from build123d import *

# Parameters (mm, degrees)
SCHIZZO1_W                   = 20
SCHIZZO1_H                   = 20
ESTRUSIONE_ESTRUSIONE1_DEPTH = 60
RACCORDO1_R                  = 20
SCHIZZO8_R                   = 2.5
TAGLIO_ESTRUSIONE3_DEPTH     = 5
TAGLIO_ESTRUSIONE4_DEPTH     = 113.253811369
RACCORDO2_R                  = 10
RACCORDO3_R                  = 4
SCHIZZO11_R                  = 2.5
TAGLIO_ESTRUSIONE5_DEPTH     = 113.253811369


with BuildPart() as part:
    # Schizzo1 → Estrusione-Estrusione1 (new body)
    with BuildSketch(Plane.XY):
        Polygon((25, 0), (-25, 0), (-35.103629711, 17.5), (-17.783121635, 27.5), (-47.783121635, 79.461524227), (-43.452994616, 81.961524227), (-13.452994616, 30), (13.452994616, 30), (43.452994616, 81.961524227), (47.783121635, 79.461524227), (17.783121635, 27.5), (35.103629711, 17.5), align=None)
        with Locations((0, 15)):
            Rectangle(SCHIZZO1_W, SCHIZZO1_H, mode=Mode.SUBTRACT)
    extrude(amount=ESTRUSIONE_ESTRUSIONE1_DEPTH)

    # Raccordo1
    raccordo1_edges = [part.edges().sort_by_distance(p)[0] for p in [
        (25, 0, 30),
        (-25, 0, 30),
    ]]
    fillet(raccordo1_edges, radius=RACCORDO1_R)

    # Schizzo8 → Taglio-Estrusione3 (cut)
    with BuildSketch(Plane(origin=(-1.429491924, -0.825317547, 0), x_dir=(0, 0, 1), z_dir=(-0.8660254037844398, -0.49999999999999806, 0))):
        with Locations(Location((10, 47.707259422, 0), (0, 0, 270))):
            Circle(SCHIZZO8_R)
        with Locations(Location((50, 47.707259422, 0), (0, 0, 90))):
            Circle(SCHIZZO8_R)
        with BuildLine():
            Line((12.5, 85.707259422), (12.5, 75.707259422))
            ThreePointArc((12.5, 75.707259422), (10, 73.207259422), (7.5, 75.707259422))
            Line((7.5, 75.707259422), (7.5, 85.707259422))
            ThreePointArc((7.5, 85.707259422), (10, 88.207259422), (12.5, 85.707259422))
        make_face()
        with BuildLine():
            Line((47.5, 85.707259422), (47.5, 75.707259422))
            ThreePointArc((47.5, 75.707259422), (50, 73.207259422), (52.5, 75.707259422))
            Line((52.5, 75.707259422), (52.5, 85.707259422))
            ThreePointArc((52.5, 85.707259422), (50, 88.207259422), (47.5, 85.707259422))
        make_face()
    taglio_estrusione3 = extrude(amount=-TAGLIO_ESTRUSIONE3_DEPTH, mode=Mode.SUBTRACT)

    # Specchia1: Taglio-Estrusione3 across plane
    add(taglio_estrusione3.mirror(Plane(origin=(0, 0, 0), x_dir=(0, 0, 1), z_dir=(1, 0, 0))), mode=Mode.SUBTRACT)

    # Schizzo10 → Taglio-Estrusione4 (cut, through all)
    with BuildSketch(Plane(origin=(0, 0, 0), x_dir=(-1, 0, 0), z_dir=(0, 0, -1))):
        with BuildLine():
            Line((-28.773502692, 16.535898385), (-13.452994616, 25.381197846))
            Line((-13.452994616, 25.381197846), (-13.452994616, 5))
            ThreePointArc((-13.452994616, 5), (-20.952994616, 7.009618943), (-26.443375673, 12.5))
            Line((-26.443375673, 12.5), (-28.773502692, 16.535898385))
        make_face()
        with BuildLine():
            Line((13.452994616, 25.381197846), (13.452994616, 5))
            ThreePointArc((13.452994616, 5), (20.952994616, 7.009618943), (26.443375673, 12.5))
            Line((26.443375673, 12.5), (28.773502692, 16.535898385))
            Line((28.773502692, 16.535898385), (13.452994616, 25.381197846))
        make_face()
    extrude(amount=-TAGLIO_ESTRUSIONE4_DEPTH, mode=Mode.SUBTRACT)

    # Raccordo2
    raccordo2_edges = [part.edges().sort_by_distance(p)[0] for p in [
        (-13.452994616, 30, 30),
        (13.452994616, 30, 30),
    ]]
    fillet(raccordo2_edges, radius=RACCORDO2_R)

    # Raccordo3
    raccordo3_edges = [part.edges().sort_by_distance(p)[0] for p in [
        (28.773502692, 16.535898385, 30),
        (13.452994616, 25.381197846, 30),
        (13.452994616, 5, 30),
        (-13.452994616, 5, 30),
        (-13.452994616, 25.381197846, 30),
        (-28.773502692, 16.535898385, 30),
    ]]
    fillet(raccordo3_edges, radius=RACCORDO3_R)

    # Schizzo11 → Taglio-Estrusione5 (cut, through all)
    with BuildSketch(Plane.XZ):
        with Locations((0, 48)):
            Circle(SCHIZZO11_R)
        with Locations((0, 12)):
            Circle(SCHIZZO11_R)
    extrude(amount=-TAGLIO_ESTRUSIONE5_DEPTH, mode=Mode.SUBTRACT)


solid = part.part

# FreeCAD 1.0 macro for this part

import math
import FreeCAD as App
import Part
import Sketcher
from FreeCAD import Vector
Q = App.Units.Quantity


def edges_at(feature, points):
    """Names of the edges that pass closest to the given points."""
    edges = feature.Shape.Edges
    near = lambda p: min(range(len(edges)), key=lambda i: edges[i].distToShape(Part.Vertex(*p))[0])
    return sorted({f"Edge{near(p) + 1}" for p in points})


def add_polygon(sketch, points):
    """Adds a closed chain of lines whose ends are joined by coincident constraints."""
    first, n = sketch.GeometryCount, len(points)
    for a, b in zip(points, points[1:] + points[:1]):
        sketch.addGeometry(Part.LineSegment(App.Vector(*a, 0), App.Vector(*b, 0)), False)
    for i in range(n):
        sketch.addConstraint(Sketcher.Constraint("Coincident", first + i, 2, first + (i + 1) % n, 1))

doc = App.newDocument("Part")
params = doc.addObject("Spreadsheet::Sheet", "Params")
for row, (alias, value) in enumerate([
    ("sketch1_width", "50 mm"),
    ("sketch1_width2", "20 mm"),
    ("sketch1_length", "20 mm"),
    ("sketch1_length2", "60 mm"),
    ("sketch1_length3", "5 mm"),
    ("pad1_length", "60 mm"),
    ("fillet_radius", "20 mm"),
    ("sketch2_diameter", "5 mm"),
    ("sketch2_height", "10 mm"),
    ("pocket1_length", "5 mm"),
    ("sketch3_radius", "15 mm"),
    ("fillet2_radius", "10 mm"),
    ("fillet3_radius", "4 mm"),
    ("sketch4_diameter", "5 mm"),
], start=1):
    params.set(f"A{row}", alias)
    params.set(f"B{row}", "=" + value)
    params.setAlias(f"B{row}", alias)

body = doc.addObject("PartDesign::Body", "Body")

# Sketch on XY plane
sketch1 = body.newObject("Sketcher::SketchObject", "Sketch")
sketch1.AttachmentSupport = (doc.getObject("XY_Plane"), [""])
sketch1.MapMode = "FlatFace"
add_polygon(sketch1, [(-25, 0), (25, 0), (35, 18), (18, 28), (48, 79), (43, 82), (13, 30), (-13, 30), (-43, 82), (-48, 79), (-18, 28), (-35, 18)])  # lines 0-11
add_polygon(sketch1, [(-10, 5), (-10, 25), (10, 25), (10, 5)])  # lines 12-15
sketch1.addConstraint(Sketcher.Constraint("Horizontal", 0))
sketch1.addConstraint(Sketcher.Constraint("Horizontal", 6))
sketch1.addConstraint(Sketcher.Constraint("Vertical", 12))
sketch1.addConstraint(Sketcher.Constraint("Horizontal", 13))
sketch1.addConstraint(Sketcher.Constraint("Vertical", 14))
sketch1.addConstraint(Sketcher.Constraint("Horizontal", 15))
sketch1.addConstraint(Sketcher.Constraint("Symmetric", 0, 2, 11, 2, -1, 1))
sketch1.addConstraint(Sketcher.Constraint("Symmetric", 4, 2, 7, 2, -2))
sketch1.addConstraint(Sketcher.Constraint("Symmetric", 3, 2, 8, 2, -2))
sketch1.addConstraint(Sketcher.Constraint("Symmetric", 2, 2, 9, 2, -2))
sketch1.addConstraint(Sketcher.Constraint("Symmetric", 1, 2, 10, 2, -2))
sketch1.addConstraint(Sketcher.Constraint("Perpendicular", 1, 2))
sketch1.addConstraint(Sketcher.Constraint("Perpendicular", 2, 3))
sketch1.addConstraint(Sketcher.Constraint("Perpendicular", 3, 4))
sketch1.addConstraint(Sketcher.Constraint("Perpendicular", 4, 5))
sketch1.addConstraint(Sketcher.Constraint("Perpendicular", 7, 8))
sketch1.addConstraint(Sketcher.Constraint("Equal", 15, 12))
sketch1.addConstraint(Sketcher.Constraint("Equal", 3, 5))
sketch1.addConstraint(Sketcher.Constraint("DistanceX", 0, 1, 0, 2, Q("50 mm")))
sketch1.addConstraint(Sketcher.Constraint("DistanceX", 13, 1, 13, 2, Q("20 mm")))
sketch1.addConstraint(Sketcher.Constraint("Angle", 1, Q("60 deg")))
sketch1.addConstraint(Sketcher.Constraint("Distance", 2, Q("20 mm")))
sketch1.addConstraint(Sketcher.Constraint("Distance", 3, Q("60 mm")))
sketch1.addConstraint(Sketcher.Constraint("Distance", 4, Q("5 mm")))
sketch1.addConstraint(Sketcher.Constraint("DistanceY", -1, 1, 5, 2, Q("30 mm")))
sketch1.addConstraint(Sketcher.Constraint("DistanceX", 12, 2, -1, 1, Q("10 mm")))
sketch1.addConstraint(Sketcher.Constraint("DistanceY", -1, 1, 12, 2, Q("25 mm")))
sketch1.setExpression("Constraints[34]", "Params.sketch1_width")
sketch1.setExpression("Constraints[35]", "Params.sketch1_width2")
sketch1.setExpression("Constraints[37]", "Params.sketch1_length")
sketch1.setExpression("Constraints[38]", "Params.sketch1_length2")
sketch1.setExpression("Constraints[39]", "Params.sketch1_length3")
pad1 = body.newObject("PartDesign::Pad", "Pad")
pad1.Profile = sketch1
pad1.setExpression("Length", "Params.pad1_length")
doc.recompute()

fillet = body.newObject("PartDesign::Fillet", "Fillet")
fillet.Base = (pad1, edges_at(pad1, [(25, 0, 30), (-25, 0, 30)]))
fillet.setExpression("Radius", "Params.fillet_radius")

# Sketch on an angled plane
sketch2 = body.newObject("Sketcher::SketchObject", "Sketch001")
sketch2.Placement = App.Placement(Vector(-1.429492, -0.825318, 0), App.Rotation(Vector(0, 0, 1), Vector(-0.5, 0.866025404, 0), Vector(-0.866025404, -0.5, 0), "ZXY"))
sketch2.addGeometry(Part.Circle(Vector(10, 47.7, 0), Vector(0, 0, 1), 2.5), False)
sketch2.addGeometry(Part.Circle(Vector(50, 47.7, 0), Vector(0, 0, 1), 2.5), False)
sketch2.addGeometry(Part.LineSegment(Vector(12.5, 75.7, 0), Vector(12.5, 85.7, 0)), False)
sketch2.addGeometry(Part.ArcOfCircle(Part.Circle(Vector(10, 85.7, 0), Vector(0, 0, 1), 2.5), math.radians(0), math.radians(180)), False)
sketch2.addGeometry(Part.LineSegment(Vector(7.5, 85.7, 0), Vector(7.5, 75.7, 0)), False)
sketch2.addGeometry(Part.ArcOfCircle(Part.Circle(Vector(10, 75.7, 0), Vector(0, 0, 1), 2.5), math.radians(180), math.radians(360)), False)
sketch2.addGeometry(Part.LineSegment(Vector(47.5, 85.7, 0), Vector(47.5, 75.7, 0)), False)
sketch2.addGeometry(Part.ArcOfCircle(Part.Circle(Vector(50, 75.7, 0), Vector(0, 0, 1), 2.5), math.radians(180), math.radians(360)), False)
sketch2.addGeometry(Part.LineSegment(Vector(52.5, 75.7, 0), Vector(52.5, 85.7, 0)), False)
sketch2.addGeometry(Part.ArcOfCircle(Part.Circle(Vector(50, 85.7, 0), Vector(0, 0, 1), 2.5), math.radians(0), math.radians(180)), False)
sketch2.addConstraint(Sketcher.Constraint("Tangent", 2, 2, 3, 1))
sketch2.addConstraint(Sketcher.Constraint("Tangent", 3, 2, 4, 1))
sketch2.addConstraint(Sketcher.Constraint("Tangent", 4, 2, 5, 1))
sketch2.addConstraint(Sketcher.Constraint("Tangent", 5, 2, 2, 1))
sketch2.addConstraint(Sketcher.Constraint("Tangent", 6, 2, 7, 1))
sketch2.addConstraint(Sketcher.Constraint("Tangent", 7, 2, 8, 1))
sketch2.addConstraint(Sketcher.Constraint("Tangent", 8, 2, 9, 1))
sketch2.addConstraint(Sketcher.Constraint("Tangent", 9, 2, 6, 1))
sketch2.addConstraint(Sketcher.Constraint("Vertical", 2))
sketch2.addConstraint(Sketcher.Constraint("Vertical", 4))
sketch2.addConstraint(Sketcher.Constraint("Vertical", 6))
sketch2.addConstraint(Sketcher.Constraint("Vertical", 8))
sketch2.addConstraint(Sketcher.Constraint("Equal", 0, 1))
sketch2.addConstraint(Sketcher.Constraint("Equal", 1, 3))
sketch2.addConstraint(Sketcher.Constraint("Equal", 5, 7))
sketch2.addConstraint(Sketcher.Constraint("Horizontal", 0, 3, 1, 3))
sketch2.addConstraint(Sketcher.Constraint("Horizontal", 5, 3, 7, 3))
sketch2.addConstraint(Sketcher.Constraint("Horizontal", 3, 3, 9, 3))
sketch2.addConstraint(Sketcher.Constraint("Vertical", 0, 3, 3, 3))
sketch2.addConstraint(Sketcher.Constraint("Vertical", 1, 3, 7, 3))
sketch2.addConstraint(Sketcher.Constraint("Diameter", 0, Q("5 mm")))
sketch2.addConstraint(Sketcher.Constraint("DistanceY", 2, 1, 2, 2, Q("10 mm")))
sketch2.addConstraint(Sketcher.Constraint("DistanceX", -1, 1, 0, 3, Q("10 mm")))
sketch2.addConstraint(Sketcher.Constraint("DistanceX", -1, 1, 1, 3, Q("50 mm")))
sketch2.addConstraint(Sketcher.Constraint("DistanceY", 0, 3, 3, 3, Q("38 mm")))
sketch2.addConstraint(Sketcher.Constraint("DistanceY", -1, 1, 0, 3, Q("47.707259 mm")))
sketch2.setExpression("Constraints[20]", "Params.sketch2_diameter")
sketch2.setExpression("Constraints[21]", "Params.sketch2_height")
pocket1 = body.newObject("PartDesign::Pocket", "Pocket")
pocket1.Profile = sketch2
pocket1.setExpression("Length", "Params.pocket1_length")
doc.recompute()

mirrored = body.newObject("PartDesign::Mirrored", "Mirrored")
mirrored.Originals = [pocket1]
mirrored.MirrorPlane = (doc.getObject("YZ_Plane"), [""])
body.Tip = mirrored

# Sketch on XY plane
sketch3 = body.newObject("Sketcher::SketchObject", "Sketch002")
sketch3.AttachmentSupport = (doc.getObject("XY_Plane"), [""])
sketch3.MapMode = "FlatFace"
sketch3.addGeometry(Part.LineSegment(Vector(13.5, 25.4, 0), Vector(28.8, 16.5, 0)), False)
sketch3.addGeometry(Part.LineSegment(Vector(28.8, 16.5, 0), Vector(26.4, 12.5, 0)), False)
sketch3.addGeometry(Part.ArcOfCircle(Part.Circle(Vector(13.5, 20, 0), Vector(0, 0, 1), 15), math.radians(-90), math.radians(-30)), False)
sketch3.addGeometry(Part.LineSegment(Vector(13.5, 5, 0), Vector(13.5, 25.4, 0)), False)
sketch3.addGeometry(Part.LineSegment(Vector(-13.5, 25.4, 0), Vector(-13.5, 5, 0)), False)
sketch3.addGeometry(Part.ArcOfCircle(Part.Circle(Vector(-13.5, 20, 0), Vector(0, 0, 1), 15), math.radians(-150), math.radians(-90)), False)
sketch3.addGeometry(Part.LineSegment(Vector(-26.4, 12.5, 0), Vector(-28.8, 16.5, 0)), False)
sketch3.addGeometry(Part.LineSegment(Vector(-28.8, 16.5, 0), Vector(-13.5, 25.4, 0)), False)
sketch3.addConstraint(Sketcher.Constraint("Coincident", 0, 2, 1, 1))
sketch3.addConstraint(Sketcher.Constraint("Tangent", 1, 2, 2, 2))
sketch3.addConstraint(Sketcher.Constraint("Coincident", 2, 1, 3, 1))
sketch3.addConstraint(Sketcher.Constraint("Coincident", 3, 2, 0, 1))
sketch3.addConstraint(Sketcher.Constraint("Coincident", 4, 2, 5, 2))
sketch3.addConstraint(Sketcher.Constraint("Tangent", 5, 1, 6, 1))
sketch3.addConstraint(Sketcher.Constraint("Coincident", 6, 2, 7, 1))
sketch3.addConstraint(Sketcher.Constraint("Coincident", 7, 2, 4, 1))
sketch3.addConstraint(Sketcher.Constraint("Vertical", 3))
sketch3.addConstraint(Sketcher.Constraint("Vertical", 4))
sketch3.addConstraint(Sketcher.Constraint("Equal", 2, 5))
sketch3.addConstraint(Sketcher.Constraint("Symmetric", 2, 3, 5, 3, -2))
sketch3.addConstraint(Sketcher.Constraint("Symmetric", 0, 2, 6, 2, -2))
sketch3.addConstraint(Sketcher.Constraint("Symmetric", 3, 2, 7, 2, -2))
sketch3.addConstraint(Sketcher.Constraint("Perpendicular", 0, 1))
sketch3.addConstraint(Sketcher.Constraint("Vertical", 5, 3, 4, 2))
sketch3.addConstraint(Sketcher.Constraint("Radius", 2, Q("15 mm")))
sketch3.addConstraint(Sketcher.Constraint("Angle", 0, Q("-30 deg")))
sketch3.addConstraint(Sketcher.Constraint("DistanceY", -1, 1, 2, 3, Q("20 mm")))
sketch3.addConstraint(Sketcher.Constraint("Distance", 0, Q("17.690599 mm")))
sketch3.addConstraint(Sketcher.Constraint("DistanceX", 5, 3, 2, 3, Q("26.905989 mm")))
sketch3.setExpression("Constraints[16]", "Params.sketch3_radius")
pocket2 = body.newObject("PartDesign::Pocket", "Pocket001")
pocket2.Profile = sketch3
pocket2.Type = "ThroughAll"
pocket2.Reversed = True
doc.recompute()

fillet2 = body.newObject("PartDesign::Fillet", "Fillet001")
fillet2.Base = (pocket2, edges_at(pocket2, [(-13.453, 30, 30), (13.453, 30, 30)]))
fillet2.setExpression("Radius", "Params.fillet2_radius")
doc.recompute()

fillet3 = body.newObject("PartDesign::Fillet", "Fillet002")
fillet3.Base = (fillet2, edges_at(fillet2, [
    (28.774, 16.536, 30),
    (13.453, 25.381, 30),
    (13.453, 5, 30),
    (-13.453, 5, 30),
    (-13.453, 25.381, 30),
    (-28.774, 16.536, 30),
]))
fillet3.setExpression("Radius", "Params.fillet3_radius")

# Sketch on XZ plane
sketch4 = body.newObject("Sketcher::SketchObject", "Sketch003")
sketch4.AttachmentSupport = (doc.getObject("XZ_Plane"), [""])
sketch4.MapMode = "FlatFace"
sketch4.addGeometry(Part.Circle(Vector(0, 48, 0), Vector(0, 0, 1), 2.5), False)
sketch4.addGeometry(Part.Circle(Vector(0, 12, 0), Vector(0, 0, 1), 2.5), False)
sketch4.addConstraint(Sketcher.Constraint("Equal", 0, 1))
sketch4.addConstraint(Sketcher.Constraint("PointOnObject", 0, 3, -2))
sketch4.addConstraint(Sketcher.Constraint("PointOnObject", 1, 3, -2))
sketch4.addConstraint(Sketcher.Constraint("Diameter", 0, Q("5 mm")))
sketch4.addConstraint(Sketcher.Constraint("DistanceY", -1, 1, 0, 3, Q("48 mm")))
sketch4.addConstraint(Sketcher.Constraint("DistanceY", -1, 1, 1, 3, Q("12 mm")))
sketch4.setExpression("Constraints[3]", "Params.sketch4_diameter")
pocket3 = body.newObject("PartDesign::Pocket", "Pocket002")
pocket3.Profile = sketch4
pocket3.Type = "ThroughAll"

doc.recompute()
